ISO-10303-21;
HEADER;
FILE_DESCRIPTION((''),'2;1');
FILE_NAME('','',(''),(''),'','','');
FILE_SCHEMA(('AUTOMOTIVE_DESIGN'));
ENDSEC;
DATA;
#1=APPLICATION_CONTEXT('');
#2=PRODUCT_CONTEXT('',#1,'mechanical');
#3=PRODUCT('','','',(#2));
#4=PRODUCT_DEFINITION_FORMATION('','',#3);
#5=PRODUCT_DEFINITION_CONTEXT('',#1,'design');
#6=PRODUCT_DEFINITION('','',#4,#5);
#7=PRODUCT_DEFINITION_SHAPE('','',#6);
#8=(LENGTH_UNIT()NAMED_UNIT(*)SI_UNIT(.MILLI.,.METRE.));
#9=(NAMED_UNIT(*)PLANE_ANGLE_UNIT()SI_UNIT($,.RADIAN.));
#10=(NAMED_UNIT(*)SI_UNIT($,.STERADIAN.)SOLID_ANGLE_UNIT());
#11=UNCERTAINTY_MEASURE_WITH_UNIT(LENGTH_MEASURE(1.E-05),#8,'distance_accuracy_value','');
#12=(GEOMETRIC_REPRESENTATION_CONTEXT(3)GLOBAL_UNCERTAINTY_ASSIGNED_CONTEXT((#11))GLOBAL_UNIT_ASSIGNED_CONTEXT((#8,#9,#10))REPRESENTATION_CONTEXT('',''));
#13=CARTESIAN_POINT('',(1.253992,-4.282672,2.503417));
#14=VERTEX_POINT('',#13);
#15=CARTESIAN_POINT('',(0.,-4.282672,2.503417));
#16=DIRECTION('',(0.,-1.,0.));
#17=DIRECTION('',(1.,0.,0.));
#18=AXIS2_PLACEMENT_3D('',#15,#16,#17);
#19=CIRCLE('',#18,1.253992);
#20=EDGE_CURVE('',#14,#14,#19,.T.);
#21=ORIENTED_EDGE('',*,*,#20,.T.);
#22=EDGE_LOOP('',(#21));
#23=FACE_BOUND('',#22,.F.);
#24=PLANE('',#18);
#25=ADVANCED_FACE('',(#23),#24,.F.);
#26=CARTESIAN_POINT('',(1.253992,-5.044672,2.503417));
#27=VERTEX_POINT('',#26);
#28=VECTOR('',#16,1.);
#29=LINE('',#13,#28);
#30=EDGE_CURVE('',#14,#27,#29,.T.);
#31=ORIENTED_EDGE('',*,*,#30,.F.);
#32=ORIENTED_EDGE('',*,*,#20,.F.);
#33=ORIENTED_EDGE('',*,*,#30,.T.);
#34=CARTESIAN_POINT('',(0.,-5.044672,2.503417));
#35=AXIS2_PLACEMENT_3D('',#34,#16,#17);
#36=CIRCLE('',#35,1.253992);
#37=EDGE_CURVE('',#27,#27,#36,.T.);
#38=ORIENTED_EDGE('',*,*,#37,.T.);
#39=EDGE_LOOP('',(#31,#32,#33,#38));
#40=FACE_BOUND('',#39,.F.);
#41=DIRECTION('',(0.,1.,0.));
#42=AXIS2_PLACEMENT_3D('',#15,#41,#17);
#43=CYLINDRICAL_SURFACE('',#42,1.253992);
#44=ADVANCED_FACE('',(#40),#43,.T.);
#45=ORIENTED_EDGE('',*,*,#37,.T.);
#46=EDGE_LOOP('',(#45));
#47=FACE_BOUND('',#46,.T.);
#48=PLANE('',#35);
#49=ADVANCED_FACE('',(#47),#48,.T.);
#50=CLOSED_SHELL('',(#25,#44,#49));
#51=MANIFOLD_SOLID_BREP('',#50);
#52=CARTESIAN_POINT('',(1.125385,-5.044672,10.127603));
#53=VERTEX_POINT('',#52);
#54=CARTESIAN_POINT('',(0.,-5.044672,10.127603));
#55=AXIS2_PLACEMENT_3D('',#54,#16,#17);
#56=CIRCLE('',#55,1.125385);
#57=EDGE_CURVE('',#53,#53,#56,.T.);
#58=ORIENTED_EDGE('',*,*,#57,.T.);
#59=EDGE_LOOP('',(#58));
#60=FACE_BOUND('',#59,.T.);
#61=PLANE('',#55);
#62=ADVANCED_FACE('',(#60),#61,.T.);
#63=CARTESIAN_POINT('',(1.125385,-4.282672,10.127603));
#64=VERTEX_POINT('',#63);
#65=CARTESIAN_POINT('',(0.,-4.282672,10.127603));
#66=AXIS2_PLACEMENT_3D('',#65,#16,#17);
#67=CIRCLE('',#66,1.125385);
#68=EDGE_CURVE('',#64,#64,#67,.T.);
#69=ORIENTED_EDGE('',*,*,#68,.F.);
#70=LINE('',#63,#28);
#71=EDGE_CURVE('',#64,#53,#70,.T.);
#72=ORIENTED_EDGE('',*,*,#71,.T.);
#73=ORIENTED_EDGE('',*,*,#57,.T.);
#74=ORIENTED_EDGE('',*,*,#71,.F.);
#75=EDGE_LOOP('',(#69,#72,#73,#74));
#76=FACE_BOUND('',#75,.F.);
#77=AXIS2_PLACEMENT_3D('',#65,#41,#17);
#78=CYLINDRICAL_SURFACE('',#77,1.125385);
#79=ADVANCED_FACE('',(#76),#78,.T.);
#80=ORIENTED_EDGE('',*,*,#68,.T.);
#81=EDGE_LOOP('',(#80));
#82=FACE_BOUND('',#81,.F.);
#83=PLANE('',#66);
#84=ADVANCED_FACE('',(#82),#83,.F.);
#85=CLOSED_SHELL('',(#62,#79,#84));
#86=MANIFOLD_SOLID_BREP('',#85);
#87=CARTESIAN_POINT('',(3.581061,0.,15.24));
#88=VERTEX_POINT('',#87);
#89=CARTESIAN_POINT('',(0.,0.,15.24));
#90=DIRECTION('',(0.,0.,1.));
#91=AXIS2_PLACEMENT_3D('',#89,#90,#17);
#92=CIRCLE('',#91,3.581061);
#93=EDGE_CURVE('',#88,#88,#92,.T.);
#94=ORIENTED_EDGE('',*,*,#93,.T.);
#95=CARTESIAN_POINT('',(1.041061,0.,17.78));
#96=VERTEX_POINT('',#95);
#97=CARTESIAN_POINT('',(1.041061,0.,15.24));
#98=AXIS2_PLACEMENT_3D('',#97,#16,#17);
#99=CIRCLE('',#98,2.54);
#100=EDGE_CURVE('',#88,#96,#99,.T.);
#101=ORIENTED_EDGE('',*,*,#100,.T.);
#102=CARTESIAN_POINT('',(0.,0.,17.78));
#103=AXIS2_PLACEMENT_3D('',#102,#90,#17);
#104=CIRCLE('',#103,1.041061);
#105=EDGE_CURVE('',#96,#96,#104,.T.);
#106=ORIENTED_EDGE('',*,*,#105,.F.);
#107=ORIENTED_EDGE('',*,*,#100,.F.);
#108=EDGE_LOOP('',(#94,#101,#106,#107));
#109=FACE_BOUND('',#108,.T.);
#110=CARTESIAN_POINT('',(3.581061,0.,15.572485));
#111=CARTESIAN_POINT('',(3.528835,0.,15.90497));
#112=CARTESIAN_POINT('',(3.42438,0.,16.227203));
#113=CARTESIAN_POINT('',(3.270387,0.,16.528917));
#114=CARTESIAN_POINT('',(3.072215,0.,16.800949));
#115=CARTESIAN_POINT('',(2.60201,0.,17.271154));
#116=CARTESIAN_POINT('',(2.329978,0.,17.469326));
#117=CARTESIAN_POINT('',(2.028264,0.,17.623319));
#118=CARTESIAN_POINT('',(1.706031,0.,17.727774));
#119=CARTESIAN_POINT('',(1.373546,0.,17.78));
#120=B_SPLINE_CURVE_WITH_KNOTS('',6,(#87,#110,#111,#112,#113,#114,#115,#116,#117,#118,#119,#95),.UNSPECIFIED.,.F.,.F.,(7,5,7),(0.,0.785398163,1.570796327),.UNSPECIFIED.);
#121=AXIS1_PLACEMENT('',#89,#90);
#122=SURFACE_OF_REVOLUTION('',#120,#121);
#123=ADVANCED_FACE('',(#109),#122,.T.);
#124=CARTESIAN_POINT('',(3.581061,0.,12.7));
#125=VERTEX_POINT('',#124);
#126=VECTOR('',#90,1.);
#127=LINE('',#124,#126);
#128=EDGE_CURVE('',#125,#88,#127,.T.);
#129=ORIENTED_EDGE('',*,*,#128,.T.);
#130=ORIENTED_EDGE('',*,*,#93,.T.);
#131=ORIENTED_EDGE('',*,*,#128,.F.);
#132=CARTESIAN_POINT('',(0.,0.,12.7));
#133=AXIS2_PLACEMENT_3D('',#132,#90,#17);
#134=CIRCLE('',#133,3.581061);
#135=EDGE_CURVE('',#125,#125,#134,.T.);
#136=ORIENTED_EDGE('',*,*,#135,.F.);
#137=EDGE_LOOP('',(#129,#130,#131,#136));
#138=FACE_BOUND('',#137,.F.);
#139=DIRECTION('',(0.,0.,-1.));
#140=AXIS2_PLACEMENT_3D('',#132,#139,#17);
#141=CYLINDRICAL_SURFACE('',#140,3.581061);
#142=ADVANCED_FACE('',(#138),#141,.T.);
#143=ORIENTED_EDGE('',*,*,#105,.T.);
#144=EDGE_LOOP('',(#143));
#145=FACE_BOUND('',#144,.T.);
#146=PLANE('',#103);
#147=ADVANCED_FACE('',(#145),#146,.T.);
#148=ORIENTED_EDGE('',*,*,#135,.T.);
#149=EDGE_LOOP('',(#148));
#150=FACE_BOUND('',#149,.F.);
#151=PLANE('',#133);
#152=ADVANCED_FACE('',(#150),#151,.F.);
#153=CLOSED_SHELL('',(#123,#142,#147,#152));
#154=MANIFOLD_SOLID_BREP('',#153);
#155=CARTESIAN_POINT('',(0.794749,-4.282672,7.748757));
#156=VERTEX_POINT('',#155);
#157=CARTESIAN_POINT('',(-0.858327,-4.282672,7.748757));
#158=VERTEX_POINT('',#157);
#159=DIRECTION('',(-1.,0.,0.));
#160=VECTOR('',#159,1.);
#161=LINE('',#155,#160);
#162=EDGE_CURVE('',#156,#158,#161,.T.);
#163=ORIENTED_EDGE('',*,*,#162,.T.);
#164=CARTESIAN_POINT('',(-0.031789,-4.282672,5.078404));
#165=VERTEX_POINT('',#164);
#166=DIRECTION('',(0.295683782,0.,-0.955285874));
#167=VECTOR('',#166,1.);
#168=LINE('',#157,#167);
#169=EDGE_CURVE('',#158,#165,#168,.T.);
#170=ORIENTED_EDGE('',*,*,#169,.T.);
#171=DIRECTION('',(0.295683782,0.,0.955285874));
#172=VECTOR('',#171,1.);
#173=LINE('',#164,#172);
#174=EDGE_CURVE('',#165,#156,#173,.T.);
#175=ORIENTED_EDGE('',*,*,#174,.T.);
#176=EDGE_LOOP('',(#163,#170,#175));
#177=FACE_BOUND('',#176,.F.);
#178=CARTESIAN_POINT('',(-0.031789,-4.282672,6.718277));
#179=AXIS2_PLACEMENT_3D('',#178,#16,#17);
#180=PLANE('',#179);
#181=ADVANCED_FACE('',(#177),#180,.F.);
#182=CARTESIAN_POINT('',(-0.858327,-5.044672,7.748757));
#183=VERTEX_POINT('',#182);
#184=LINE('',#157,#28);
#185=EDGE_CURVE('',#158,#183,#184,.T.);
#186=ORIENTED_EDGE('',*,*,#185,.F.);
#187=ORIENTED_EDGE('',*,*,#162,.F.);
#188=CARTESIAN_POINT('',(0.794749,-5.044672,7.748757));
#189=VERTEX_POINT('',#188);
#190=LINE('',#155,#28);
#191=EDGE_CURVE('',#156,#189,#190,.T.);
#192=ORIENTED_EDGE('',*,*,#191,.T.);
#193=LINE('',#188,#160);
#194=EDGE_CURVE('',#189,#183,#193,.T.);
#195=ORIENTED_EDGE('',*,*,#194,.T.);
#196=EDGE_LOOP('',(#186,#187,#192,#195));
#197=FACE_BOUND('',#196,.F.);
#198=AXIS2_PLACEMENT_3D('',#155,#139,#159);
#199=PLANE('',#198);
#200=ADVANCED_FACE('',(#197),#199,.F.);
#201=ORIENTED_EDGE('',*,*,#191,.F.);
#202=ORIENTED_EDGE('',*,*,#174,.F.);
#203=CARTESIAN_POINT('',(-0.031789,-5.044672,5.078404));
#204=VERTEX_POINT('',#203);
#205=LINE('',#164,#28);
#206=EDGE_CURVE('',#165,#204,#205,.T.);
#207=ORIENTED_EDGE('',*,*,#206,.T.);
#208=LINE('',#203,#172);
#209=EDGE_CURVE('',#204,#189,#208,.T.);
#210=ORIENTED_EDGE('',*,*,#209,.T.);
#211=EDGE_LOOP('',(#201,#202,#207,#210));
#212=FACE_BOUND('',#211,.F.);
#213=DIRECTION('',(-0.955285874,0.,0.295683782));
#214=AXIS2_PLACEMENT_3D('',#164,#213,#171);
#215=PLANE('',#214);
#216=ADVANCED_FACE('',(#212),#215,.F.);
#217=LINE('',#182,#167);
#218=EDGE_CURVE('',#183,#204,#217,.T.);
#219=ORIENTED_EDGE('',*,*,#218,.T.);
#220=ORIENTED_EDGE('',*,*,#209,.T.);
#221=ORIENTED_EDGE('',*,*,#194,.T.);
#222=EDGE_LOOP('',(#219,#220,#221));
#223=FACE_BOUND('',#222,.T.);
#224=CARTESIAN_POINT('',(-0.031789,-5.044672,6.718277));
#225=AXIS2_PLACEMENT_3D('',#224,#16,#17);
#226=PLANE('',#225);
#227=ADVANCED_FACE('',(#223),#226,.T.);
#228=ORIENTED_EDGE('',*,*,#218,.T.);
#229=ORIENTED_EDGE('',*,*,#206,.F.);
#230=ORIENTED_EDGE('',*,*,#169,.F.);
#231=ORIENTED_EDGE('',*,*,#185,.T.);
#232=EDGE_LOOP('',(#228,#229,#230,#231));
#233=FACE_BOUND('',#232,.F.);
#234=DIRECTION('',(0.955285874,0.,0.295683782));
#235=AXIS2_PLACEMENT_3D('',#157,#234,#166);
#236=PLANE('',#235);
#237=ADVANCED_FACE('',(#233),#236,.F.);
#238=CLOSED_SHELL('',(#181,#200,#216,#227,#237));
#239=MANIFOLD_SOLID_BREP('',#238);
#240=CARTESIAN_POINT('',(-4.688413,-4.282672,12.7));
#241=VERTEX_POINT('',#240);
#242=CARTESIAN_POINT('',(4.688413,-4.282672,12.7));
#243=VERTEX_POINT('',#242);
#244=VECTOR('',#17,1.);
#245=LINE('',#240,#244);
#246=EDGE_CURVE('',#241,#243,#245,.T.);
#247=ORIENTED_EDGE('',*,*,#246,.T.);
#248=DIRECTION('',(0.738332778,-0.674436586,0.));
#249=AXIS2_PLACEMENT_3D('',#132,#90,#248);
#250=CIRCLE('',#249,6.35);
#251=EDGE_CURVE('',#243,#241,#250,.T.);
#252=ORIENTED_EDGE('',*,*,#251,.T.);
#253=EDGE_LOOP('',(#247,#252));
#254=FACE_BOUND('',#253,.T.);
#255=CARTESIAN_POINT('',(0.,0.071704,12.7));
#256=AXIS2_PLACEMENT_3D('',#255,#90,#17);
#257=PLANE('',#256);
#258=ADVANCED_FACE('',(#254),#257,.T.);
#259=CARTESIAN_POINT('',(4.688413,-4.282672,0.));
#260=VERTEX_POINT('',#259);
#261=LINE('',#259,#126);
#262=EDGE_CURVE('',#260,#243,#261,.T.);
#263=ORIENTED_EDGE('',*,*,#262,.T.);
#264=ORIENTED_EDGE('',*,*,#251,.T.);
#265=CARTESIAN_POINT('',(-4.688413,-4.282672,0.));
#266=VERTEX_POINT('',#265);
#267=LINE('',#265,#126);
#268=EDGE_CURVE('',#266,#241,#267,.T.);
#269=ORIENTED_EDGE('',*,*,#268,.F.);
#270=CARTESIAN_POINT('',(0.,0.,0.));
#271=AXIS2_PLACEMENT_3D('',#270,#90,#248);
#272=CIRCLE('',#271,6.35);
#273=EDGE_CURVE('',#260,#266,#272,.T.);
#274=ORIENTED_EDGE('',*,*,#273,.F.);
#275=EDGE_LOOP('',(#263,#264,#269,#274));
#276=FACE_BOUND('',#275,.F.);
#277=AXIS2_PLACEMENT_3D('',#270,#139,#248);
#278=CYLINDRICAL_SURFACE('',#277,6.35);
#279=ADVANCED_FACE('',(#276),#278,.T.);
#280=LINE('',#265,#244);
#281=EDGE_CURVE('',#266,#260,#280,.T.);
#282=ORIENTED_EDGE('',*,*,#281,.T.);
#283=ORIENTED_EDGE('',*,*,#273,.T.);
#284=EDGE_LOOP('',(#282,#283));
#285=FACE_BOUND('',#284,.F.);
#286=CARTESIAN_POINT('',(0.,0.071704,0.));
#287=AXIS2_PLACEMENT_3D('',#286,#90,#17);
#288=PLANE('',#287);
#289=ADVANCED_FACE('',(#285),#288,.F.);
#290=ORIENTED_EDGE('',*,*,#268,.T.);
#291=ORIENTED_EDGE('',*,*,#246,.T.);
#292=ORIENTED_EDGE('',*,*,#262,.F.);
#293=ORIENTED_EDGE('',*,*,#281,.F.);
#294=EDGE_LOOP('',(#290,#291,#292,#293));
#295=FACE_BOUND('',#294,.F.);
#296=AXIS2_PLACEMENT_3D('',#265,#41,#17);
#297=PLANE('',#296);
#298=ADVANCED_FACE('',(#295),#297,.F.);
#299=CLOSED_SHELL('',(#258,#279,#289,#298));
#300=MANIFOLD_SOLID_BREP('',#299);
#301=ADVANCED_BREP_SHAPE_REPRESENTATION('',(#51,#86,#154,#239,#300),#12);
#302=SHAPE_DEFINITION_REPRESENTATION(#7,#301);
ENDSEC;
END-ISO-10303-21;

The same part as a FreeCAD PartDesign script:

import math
import FreeCAD as App
import Part
import Sketcher
Q = App.Units.Quantity


def edges_at(feature, points):
    """Names of the edges that pass closest to the given points."""
    edges = feature.Shape.Edges
    near = lambda p: min(range(len(edges)), key=lambda i: edges[i].distToShape(Part.Vertex(*p))[0])
    return sorted({f"Edge{near(p) + 1}" for p in points})

doc = App.newDocument("Part")
body = doc.addObject("PartDesign::Body", "Body")

sketch1 = body.newObject("Sketcher::SketchObject", "Sketch")
sketch1.AttachmentSupport = (doc.getObject("XY_Plane"), [""])
sketch1.MapMode = "FlatFace"
sketch1.addGeometry([
    Part.LineSegment(App.Vector(-4.688413, -4.282672, 0), App.Vector(4.688413, -4.282672, 0)),
    Part.ArcOfCircle(Part.Circle(App.Vector(0, 0, 0), App.Vector(0, 0, 1), 6.35), math.radians(-42.410413), math.radians(222.410413)),
], False)
sketch1.addConstraint([
    Sketcher.Constraint("Coincident", 0, 1, 1, 2),
    Sketcher.Constraint("Coincident", 1, 1, 0, 2),
    Sketcher.Constraint("Horizontal", 0),
    Sketcher.Constraint("Coincident", 1, 3, -1, 1),
    Sketcher.Constraint("Radius", 1, Q("0.25 in")),
    Sketcher.Constraint("DistanceX", 0, 1, 0, 2, Q("9.376826 mm")),
])
pad1 = body.newObject("PartDesign::Pad", "Pad")
pad1.Profile = sketch1
pad1.Length = Q("0.5 in")
body2 = doc.addObject("PartDesign::Body", "Body001")

sketch2 = body2.newObject("Sketcher::SketchObject", "Sketch001")
sketch2.AttachmentSupport = (doc.getObject("XY_Plane001"), [""])
sketch2.MapMode = "FlatFace"
sketch2.AttachmentOffset = App.Placement(App.Vector(0, 0, 0.5 * 25.4), App.Rotation())
sketch2.addGeometry(Part.Circle(App.Vector(0, 0, 0), App.Vector(0, 0, 1), 3.581061), False)
sketch2.addConstraint([
    Sketcher.Constraint("Coincident", 0, 3, -1, 1),
    Sketcher.Constraint("Diameter", 0, Q("7.162122 mm")),
])
pad2 = body2.newObject("PartDesign::Pad", "Pad001")
pad2.Profile = sketch2
pad2.Length = Q("0.2 in")
doc.recompute()

fillet = body2.newObject("PartDesign::Fillet", "Fillet")
fillet.Base = (pad2, edges_at(pad2, [(-3.581, 0, 17.78)]))
fillet.Radius = Q("0.1 in")
body3 = doc.addObject("PartDesign::Body", "Body002")

sketch3 = body3.newObject("Sketcher::SketchObject", "Sketch002")
sketch3.AttachmentSupport = (doc.getObject("XZ_Plane002"), [""])
sketch3.MapMode = "FlatFace"
sketch3.AttachmentOffset = App.Placement(App.Vector(0, 0, 4.282672), App.Rotation())
sketch3.addGeometry(Part.Circle(App.Vector(0, 10.127603, 0), App.Vector(0, 0, 1), 1.125385), False)
sketch3.addConstraint([
    Sketcher.Constraint("PointOnObject", 0, 3, -2),
    Sketcher.Constraint("Diameter", 0, Q("2.25077 mm")),
    Sketcher.Constraint("DistanceY", -1, 1, 0, 3, Q("10.127603 mm")),
])
pad3 = body3.newObject("PartDesign::Pad", "Pad002")
pad3.Profile = sketch3
pad3.Length = Q("0.03 in")
body4 = doc.addObject("PartDesign::Body", "Body003")

sketch4 = body4.newObject("Sketcher::SketchObject", "Sketch003")
sketch4.AttachmentSupport = (doc.getObject("XZ_Plane003"), [""])
sketch4.MapMode = "FlatFace"
sketch4.AttachmentOffset = App.Placement(App.Vector(0, 0, 4.282672), App.Rotation())
sketch4.addGeometry(Part.Circle(App.Vector(0, 2.503417, 0), App.Vector(0, 0, 1), 1.253992), False)
sketch4.addConstraint([
    Sketcher.Constraint("PointOnObject", 0, 3, -2),
    Sketcher.Constraint("Diameter", 0, Q("2.507984 mm")),
    Sketcher.Constraint("DistanceY", -1, 1, 0, 3, Q("2.503417 mm")),
])
pad4 = body4.newObject("PartDesign::Pad", "Pad003")
pad4.Profile = sketch4
pad4.Length = Q("0.03 in")
body5 = doc.addObject("PartDesign::Body", "Body004")

sketch5 = body5.newObject("Sketcher::SketchObject", "Sketch004")
sketch5.AttachmentSupport = (doc.getObject("XZ_Plane004"), [""])
sketch5.MapMode = "FlatFace"
sketch5.AttachmentOffset = App.Placement(App.Vector(0, 0, 4.282672), App.Rotation())
sketch5.addGeometry([
    Part.LineSegment(App.Vector(0.794749, 7.748757, 0), App.Vector(-0.858327, 7.748757, 0)),
    Part.LineSegment(App.Vector(-0.858327, 7.748757, 0), App.Vector(-0.031789, 5.078404, 0)),
    Part.LineSegment(App.Vector(-0.031789, 5.078404, 0), App.Vector(0.794749, 7.748757, 0)),
], False)
sketch5.addConstraint([
    Sketcher.Constraint("Coincident", 0, 2, 1, 1),
    Sketcher.Constraint("Coincident", 1, 2, 2, 1),
    Sketcher.Constraint("Coincident", 2, 2, 0, 1),
    Sketcher.Constraint("Horizontal", 0),
    Sketcher.Constraint("Equal", 1, 2),
    Sketcher.Constraint("DistanceX", 0, 2, 0, 1, Q("1.653076 mm")),
    Sketcher.Constraint("DistanceX", 1, 2, -1, 1, Q("0.031789 mm")),
    Sketcher.Constraint("Distance", 1, Q("2.795344 mm")),
    Sketcher.Constraint("DistanceY", -1, 1, 0, 2, Q("7.748757 mm")),
])
pad5 = body5.newObject("PartDesign::Pad", "Pad004")
pad5.Profile = sketch5
pad5.Length = Q("0.03 in")

doc.recompute()
